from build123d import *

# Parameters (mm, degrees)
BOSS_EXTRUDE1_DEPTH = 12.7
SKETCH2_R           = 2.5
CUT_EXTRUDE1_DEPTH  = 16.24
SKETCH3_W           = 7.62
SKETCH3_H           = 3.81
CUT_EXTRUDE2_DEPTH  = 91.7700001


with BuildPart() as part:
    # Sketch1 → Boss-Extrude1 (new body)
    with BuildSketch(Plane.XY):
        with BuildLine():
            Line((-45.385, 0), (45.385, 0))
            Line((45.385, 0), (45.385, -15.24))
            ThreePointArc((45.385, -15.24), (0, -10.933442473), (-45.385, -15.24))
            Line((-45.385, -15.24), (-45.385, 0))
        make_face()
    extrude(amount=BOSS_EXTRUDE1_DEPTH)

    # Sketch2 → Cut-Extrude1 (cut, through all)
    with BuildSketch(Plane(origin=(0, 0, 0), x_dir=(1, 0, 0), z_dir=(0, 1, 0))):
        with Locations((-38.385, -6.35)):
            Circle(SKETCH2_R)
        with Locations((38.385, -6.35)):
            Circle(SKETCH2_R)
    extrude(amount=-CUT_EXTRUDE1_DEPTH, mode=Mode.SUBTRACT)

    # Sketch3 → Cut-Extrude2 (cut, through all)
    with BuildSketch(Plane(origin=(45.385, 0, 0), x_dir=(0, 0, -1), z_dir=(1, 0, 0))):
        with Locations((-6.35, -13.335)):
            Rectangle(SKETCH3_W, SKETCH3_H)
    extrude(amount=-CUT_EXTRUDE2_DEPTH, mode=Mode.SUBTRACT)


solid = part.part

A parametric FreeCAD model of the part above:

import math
import FreeCAD as App
import Part
import Sketcher
from FreeCAD import Vector
Q = App.Units.Quantity

doc = App.newDocument("Part")
body = doc.addObject("PartDesign::Body", "Body")

sketch1 = body.newObject("Sketcher::SketchObject", "Sketch")
sketch1.AttachmentSupport = (doc.getObject("XY_Plane"), [""])
sketch1.MapMode = "FlatFace"
sketch1.addGeometry(Part.LineSegment(Vector(45, 0, 0), Vector(-45, 0, 0)), False)
sketch1.addGeometry(Part.LineSegment(Vector(-45, 0, 0), Vector(-45, -15, 0)), False)
sketch1.addGeometry(Part.ArcOfCircle(Part.Circle(Vector(0, -252, 0), Vector(0, 0, 1), 241), math.radians(79), math.radians(101)), False)
sketch1.addGeometry(Part.LineSegment(Vector(45, -15, 0), Vector(45, 0, 0)), False)
sketch1.addConstraint(Sketcher.Constraint("Coincident", 0, 2, 1, 1))
sketch1.addConstraint(Sketcher.Constraint("Coincident", 1, 2, 2, 2))
sketch1.addConstraint(Sketcher.Constraint("Coincident", 2, 1, 3, 1))
sketch1.addConstraint(Sketcher.Constraint("Coincident", 3, 2, 0, 1))
sketch1.addConstraint(Sketcher.Constraint("Horizontal", 0))
sketch1.addConstraint(Sketcher.Constraint("Vertical", 1))
sketch1.addConstraint(Sketcher.Constraint("Vertical", 3))
sketch1.addConstraint(Sketcher.Constraint("Symmetric", 0, 2, 3, 2, -1, 1))
sketch1.addConstraint(Sketcher.Constraint("PointOnObject", 2, 3, -2))
sketch1.addConstraint(Sketcher.Constraint("Radius", 2, Q("9.5 in")))
sketch1.addConstraint(Sketcher.Constraint("DistanceY", 1, 2, 1, 1, Q("0.6 in")))
sketch1.addConstraint(Sketcher.Constraint("DistanceX", 0, 2, 0, 1, 90.77))
pad1 = body.newObject("PartDesign::Pad", "Pad")
pad1.Profile = sketch1
pad1.Length = Q("0.5 in")

sketch2 = body.newObject("Sketcher::SketchObject", "Sketch001")
sketch2.AttachmentSupport = (doc.getObject("XZ_Plane"), [""])
sketch2.MapMode = "FlatFace"
sketch2.addGeometry(Part.Circle(Vector(-38.4, 6.3, 0), Vector(0, 0, 1), 2.5), False)
sketch2.addGeometry(Part.Circle(Vector(38.4, 6.3, 0), Vector(0, 0, 1), 2.5), False)
sketch2.addConstraint(Sketcher.Constraint("Equal", 0, 1))
sketch2.addConstraint(Sketcher.Constraint("Symmetric", 0, 3, 1, 3, -2))
sketch2.addConstraint(Sketcher.Constraint("Diameter", 0, 5.0))
sketch2.addConstraint(Sketcher.Constraint("DistanceY", -1, 1, 0, 3, Q("0.25 in")))
sketch2.addConstraint(Sketcher.Constraint("DistanceX", 0, 3, -1, 1, 38.385))
pocket1 = body.newObject("PartDesign::Pocket", "Pocket")
pocket1.Profile = sketch2
pocket1.Type = "ThroughAll"
pocket1.Reversed = True

sketch3 = body.newObject("Sketcher::SketchObject", "Sketch002")
sketch3.AttachmentSupport = (doc.getObject("YZ_Plane"), [""])
sketch3.MapMode = "FlatFace"
sketch3.AttachmentOffset = App.Placement(Vector(0, 0, 45.385), App.Rotation())
sketch3.addGeometry(Part.LineSegment(Vector(-11.4, 10.2, 0), Vector(-15.2, 10.2, 0)), False)
sketch3.addGeometry(Part.LineSegment(Vector(-15.2, 10.2, 0), Vector(-15.2, 2.5, 0)), False)
sketch3.addGeometry(Part.LineSegment(Vector(-15.2, 2.5, 0), Vector(-11.4, 2.5, 0)), False)
sketch3.addGeometry(Part.LineSegment(Vector(-11.4, 2.5, 0), Vector(-11.4, 10.2, 0)), False)
sketch3.addConstraint(Sketcher.Constraint("Coincident", 0, 2, 1, 1))
sketch3.addConstraint(Sketcher.Constraint("Coincident", 1, 2, 2, 1))
sketch3.addConstraint(Sketcher.Constraint("Coincident", 2, 2, 3, 1))
sketch3.addConstraint(Sketcher.Constraint("Coincident", 3, 2, 0, 1))
sketch3.addConstraint(Sketcher.Constraint("Horizontal", 0))
sketch3.addConstraint(Sketcher.Constraint("Vertical", 1))
sketch3.addConstraint(Sketcher.Constraint("Horizontal", 2))
sketch3.addConstraint(Sketcher.Constraint("Vertical", 3))
sketch3.addConstraint(Sketcher.Constraint("DistanceY", 1, 2, 1, 1, Q("0.3 in")))
sketch3.addConstraint(Sketcher.Constraint("DistanceX", 0, 2, 0, 1, Q("0.15 in")))
sketch3.addConstraint(Sketcher.Constraint("DistanceX", 0, 2, -1, 1, Q("0.6 in")))
sketch3.addConstraint(Sketcher.Constraint("DistanceY", -1, 1, 0, 2, Q("0.4 in")))
pocket2 = body.newObject("PartDesign::Pocket", "Pocket001")
pocket2.Profile = sketch3
pocket2.Type = "ThroughAll"

doc.recompute()
